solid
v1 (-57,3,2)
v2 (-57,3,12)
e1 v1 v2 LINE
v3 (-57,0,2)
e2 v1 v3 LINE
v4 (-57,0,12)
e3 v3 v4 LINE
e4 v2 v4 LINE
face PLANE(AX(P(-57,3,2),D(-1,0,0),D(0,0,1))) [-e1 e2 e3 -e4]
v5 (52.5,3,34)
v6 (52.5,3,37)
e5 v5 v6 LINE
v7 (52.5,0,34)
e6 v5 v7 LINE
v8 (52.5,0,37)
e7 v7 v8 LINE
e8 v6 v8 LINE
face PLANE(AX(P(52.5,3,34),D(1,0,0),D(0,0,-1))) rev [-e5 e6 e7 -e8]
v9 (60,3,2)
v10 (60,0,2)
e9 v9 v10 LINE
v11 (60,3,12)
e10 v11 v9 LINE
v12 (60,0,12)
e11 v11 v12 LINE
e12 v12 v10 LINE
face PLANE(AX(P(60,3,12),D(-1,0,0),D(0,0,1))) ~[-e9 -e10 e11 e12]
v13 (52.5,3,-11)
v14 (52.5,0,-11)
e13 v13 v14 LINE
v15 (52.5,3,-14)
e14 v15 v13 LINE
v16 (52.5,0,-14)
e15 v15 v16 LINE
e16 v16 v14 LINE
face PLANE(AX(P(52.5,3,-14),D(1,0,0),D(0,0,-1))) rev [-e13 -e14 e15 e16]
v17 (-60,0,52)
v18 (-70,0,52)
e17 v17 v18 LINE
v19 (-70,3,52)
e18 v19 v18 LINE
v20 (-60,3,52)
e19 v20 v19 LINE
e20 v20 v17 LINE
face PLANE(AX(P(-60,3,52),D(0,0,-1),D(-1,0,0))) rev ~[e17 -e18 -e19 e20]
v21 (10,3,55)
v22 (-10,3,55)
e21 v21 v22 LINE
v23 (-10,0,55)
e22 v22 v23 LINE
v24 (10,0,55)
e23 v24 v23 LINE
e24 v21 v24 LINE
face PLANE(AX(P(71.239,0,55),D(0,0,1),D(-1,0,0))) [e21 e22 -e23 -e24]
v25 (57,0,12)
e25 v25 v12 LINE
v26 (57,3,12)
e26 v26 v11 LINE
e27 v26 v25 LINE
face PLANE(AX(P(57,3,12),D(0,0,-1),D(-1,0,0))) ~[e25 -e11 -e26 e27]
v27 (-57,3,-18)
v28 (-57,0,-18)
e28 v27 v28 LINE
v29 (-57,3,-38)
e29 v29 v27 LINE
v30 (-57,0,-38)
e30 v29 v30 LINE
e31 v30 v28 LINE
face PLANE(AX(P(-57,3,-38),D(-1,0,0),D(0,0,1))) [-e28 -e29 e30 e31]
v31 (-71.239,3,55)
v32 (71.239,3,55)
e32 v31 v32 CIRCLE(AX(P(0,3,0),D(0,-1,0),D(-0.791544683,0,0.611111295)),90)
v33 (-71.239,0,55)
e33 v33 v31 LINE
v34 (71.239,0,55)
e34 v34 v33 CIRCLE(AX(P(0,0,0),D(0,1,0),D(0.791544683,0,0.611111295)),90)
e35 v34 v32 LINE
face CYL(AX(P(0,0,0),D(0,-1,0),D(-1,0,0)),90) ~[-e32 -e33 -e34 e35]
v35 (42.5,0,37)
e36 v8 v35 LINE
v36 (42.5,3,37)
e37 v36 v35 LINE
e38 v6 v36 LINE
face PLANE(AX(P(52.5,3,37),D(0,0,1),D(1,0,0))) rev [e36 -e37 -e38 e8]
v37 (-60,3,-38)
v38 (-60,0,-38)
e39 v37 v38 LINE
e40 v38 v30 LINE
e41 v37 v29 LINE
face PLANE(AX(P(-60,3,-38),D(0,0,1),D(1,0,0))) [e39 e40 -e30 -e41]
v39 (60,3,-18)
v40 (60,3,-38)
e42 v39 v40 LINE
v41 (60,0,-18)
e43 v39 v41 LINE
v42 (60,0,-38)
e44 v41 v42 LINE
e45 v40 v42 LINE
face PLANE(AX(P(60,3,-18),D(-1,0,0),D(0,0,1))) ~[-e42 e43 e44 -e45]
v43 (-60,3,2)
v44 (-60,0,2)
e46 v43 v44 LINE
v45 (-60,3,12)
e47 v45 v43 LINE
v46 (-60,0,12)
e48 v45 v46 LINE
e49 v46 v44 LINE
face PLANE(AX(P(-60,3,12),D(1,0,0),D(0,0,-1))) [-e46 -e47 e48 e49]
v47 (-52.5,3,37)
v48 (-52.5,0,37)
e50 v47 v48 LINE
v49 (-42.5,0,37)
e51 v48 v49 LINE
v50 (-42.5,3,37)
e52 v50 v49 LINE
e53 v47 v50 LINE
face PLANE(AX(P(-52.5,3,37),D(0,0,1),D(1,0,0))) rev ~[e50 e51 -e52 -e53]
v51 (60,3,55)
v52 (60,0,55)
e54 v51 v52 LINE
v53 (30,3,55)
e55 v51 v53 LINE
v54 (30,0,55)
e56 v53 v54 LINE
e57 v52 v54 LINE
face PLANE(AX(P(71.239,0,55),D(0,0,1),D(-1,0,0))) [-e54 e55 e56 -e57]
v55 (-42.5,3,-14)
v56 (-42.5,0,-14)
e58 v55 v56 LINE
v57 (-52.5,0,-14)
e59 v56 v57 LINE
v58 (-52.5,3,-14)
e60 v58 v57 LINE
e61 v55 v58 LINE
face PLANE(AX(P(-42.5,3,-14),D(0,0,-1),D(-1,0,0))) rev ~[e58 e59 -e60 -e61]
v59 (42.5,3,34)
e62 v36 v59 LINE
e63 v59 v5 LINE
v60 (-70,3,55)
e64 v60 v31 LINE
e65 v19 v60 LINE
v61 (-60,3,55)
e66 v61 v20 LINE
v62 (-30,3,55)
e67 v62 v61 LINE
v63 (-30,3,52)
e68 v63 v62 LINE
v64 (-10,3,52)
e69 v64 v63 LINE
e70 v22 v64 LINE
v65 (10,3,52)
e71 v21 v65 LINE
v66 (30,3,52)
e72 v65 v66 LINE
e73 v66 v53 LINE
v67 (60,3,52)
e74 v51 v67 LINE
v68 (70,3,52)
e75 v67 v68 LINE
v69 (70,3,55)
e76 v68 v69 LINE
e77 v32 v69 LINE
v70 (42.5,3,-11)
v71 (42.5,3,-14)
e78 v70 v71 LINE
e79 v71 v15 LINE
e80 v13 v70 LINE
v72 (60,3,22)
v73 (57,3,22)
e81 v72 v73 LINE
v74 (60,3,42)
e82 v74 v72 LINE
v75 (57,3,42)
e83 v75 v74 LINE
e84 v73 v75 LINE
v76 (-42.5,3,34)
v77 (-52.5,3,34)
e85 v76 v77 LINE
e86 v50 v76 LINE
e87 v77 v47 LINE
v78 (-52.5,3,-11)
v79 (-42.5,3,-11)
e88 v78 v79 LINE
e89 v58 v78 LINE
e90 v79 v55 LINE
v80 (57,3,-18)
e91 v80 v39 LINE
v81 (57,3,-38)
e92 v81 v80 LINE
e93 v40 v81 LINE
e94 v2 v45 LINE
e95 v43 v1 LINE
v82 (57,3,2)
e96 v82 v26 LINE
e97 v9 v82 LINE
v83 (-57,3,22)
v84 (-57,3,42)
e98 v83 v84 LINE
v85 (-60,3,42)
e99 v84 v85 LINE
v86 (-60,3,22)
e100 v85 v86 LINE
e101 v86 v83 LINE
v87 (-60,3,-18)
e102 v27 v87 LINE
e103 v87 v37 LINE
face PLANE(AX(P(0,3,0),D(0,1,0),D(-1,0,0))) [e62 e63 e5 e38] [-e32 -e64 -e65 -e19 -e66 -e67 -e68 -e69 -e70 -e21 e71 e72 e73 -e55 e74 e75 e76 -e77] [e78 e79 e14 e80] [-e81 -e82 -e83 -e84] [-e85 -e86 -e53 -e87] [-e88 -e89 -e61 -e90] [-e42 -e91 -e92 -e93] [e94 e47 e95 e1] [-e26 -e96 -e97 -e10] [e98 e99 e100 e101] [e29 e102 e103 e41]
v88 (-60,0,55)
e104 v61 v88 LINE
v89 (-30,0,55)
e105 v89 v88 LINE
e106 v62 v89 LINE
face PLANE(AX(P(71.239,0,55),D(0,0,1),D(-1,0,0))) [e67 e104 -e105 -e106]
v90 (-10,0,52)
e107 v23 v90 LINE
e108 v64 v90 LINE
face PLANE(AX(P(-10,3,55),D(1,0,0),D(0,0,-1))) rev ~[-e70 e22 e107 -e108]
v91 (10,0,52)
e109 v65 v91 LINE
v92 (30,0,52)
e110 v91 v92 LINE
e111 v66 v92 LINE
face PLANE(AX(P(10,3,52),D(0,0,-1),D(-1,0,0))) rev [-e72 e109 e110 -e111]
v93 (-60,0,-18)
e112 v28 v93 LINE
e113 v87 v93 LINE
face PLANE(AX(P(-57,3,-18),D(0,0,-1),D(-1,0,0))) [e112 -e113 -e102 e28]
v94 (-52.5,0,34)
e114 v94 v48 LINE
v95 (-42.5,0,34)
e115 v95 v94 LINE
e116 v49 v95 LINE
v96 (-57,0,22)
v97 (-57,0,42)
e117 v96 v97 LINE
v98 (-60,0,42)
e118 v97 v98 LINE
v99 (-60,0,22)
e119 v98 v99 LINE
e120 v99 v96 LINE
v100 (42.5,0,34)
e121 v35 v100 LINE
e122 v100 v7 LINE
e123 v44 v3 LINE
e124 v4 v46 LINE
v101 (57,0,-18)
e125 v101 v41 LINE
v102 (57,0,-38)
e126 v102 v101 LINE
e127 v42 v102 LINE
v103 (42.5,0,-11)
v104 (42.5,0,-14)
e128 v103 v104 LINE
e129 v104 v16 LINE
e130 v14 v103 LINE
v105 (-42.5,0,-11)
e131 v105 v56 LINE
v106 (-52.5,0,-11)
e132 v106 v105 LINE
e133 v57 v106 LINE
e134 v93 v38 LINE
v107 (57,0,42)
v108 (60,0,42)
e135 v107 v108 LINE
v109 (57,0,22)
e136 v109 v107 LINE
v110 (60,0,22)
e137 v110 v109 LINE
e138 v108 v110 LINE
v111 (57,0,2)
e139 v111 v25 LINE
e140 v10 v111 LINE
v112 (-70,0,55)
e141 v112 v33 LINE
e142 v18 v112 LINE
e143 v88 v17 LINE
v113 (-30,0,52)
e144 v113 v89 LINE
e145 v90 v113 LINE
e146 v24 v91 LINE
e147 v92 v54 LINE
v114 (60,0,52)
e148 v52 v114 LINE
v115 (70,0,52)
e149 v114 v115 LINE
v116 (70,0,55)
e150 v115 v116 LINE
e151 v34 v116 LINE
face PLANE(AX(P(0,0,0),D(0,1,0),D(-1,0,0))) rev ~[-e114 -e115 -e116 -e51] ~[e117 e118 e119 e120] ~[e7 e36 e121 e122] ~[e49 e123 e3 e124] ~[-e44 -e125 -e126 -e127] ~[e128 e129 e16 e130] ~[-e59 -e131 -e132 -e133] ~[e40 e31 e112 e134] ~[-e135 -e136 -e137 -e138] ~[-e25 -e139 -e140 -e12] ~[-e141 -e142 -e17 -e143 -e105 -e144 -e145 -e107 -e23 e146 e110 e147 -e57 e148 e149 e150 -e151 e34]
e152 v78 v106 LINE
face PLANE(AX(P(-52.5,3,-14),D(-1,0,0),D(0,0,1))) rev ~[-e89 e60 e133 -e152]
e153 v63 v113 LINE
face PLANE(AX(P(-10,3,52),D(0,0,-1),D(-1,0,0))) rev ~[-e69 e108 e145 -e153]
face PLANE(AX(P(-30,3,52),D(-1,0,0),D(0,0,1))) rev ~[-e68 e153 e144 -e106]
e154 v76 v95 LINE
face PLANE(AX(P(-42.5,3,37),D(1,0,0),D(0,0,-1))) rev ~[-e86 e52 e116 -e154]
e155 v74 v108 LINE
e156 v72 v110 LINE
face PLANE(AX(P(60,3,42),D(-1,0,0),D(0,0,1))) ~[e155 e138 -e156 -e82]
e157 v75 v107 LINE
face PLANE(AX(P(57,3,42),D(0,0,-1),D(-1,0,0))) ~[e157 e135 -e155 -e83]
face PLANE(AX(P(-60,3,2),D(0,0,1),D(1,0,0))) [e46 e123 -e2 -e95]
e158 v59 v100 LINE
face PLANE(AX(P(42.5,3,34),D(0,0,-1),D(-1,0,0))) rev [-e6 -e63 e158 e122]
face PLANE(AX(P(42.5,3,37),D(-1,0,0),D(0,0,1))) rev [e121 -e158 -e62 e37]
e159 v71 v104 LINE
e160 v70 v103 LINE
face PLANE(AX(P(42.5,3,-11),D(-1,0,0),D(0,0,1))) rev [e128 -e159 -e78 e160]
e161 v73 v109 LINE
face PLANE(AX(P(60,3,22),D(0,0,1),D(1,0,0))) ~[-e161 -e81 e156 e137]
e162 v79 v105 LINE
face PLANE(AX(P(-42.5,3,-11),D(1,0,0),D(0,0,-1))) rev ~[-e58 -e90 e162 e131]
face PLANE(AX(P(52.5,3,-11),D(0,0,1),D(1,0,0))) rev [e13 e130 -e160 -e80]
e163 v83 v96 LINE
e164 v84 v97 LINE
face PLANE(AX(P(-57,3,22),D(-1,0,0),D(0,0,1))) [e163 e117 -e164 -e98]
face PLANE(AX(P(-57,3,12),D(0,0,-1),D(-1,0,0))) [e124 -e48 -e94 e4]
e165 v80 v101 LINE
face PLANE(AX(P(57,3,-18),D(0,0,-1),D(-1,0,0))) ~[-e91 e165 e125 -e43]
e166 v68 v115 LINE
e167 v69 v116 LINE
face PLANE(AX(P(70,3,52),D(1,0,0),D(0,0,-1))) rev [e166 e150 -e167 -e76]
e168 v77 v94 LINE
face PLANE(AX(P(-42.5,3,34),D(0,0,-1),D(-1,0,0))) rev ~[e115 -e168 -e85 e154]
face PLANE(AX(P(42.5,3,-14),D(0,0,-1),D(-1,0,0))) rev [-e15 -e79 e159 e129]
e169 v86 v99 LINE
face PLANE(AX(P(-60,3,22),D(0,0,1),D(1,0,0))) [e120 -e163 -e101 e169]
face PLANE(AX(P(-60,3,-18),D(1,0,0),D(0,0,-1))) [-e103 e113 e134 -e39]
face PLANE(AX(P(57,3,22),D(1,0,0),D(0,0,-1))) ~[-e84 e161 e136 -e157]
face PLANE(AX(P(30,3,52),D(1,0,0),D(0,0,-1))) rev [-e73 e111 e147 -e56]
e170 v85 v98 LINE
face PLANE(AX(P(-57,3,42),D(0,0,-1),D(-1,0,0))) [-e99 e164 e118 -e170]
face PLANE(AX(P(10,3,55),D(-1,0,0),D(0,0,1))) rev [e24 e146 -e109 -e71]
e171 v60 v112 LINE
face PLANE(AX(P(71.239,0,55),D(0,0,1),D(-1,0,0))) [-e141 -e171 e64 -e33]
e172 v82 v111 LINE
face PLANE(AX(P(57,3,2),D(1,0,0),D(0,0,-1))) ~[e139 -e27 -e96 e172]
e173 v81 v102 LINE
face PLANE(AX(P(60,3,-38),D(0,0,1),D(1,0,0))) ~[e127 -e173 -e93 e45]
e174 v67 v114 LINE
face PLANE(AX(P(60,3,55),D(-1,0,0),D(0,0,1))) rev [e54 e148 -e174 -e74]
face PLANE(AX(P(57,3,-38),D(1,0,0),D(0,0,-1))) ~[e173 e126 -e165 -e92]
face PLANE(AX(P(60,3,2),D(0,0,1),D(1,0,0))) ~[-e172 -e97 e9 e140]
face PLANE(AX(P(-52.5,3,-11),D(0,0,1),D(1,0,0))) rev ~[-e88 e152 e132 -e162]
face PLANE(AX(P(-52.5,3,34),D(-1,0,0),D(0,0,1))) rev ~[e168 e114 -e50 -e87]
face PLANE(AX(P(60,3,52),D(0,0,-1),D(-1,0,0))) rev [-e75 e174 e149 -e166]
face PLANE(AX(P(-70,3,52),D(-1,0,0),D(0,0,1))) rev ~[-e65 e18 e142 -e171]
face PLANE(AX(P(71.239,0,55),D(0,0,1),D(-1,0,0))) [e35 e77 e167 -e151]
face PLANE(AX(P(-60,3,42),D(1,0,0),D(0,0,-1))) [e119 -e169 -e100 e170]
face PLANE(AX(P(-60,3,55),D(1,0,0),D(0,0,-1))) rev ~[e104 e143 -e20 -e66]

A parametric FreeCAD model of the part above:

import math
import FreeCAD as App
import Part
import Sketcher
from FreeCAD import Vector


def add_polygon(sketch, points):
    """Adds a closed chain of lines whose ends are joined by coincident constraints."""
    first, n = sketch.GeometryCount, len(points)
    for a, b in zip(points, points[1:] + points[:1]):
        sketch.addGeometry(Part.LineSegment(App.Vector(*a, 0), App.Vector(*b, 0)), False)
    for i in range(n):
        sketch.addConstraint(Sketcher.Constraint("Coincident", first + i, 2, first + (i + 1) % n, 1))

doc = App.newDocument("Part")
params = doc.addObject("Spreadsheet::Sheet", "Params")
for row, (alias, value) in enumerate([
    ("sketch1_radius", "90 mm"),
    ("pad1_length", "3 mm"),
    ("sketch2_width", "10 mm"),
    ("sketch2_width2", "20 mm"),
    ("sketch2_height", "3 mm"),
    ("pocket1_length", "3 mm"),
    ("sketch3_width", "3 mm"),
    ("sketch3_height", "20 mm"),
    ("sketch3_height2", "10 mm"),
    ("pocket2_length", "3 mm"),
    ("sketch4_width", "10 mm"),
    ("sketch4_height", "3 mm"),
    ("pocket3_length", "3 mm"),
], start=1):
    params.set(f"A{row}", alias)
    params.set(f"B{row}", "=" + value)
    params.setAlias(f"B{row}", alias)

body = doc.addObject("PartDesign::Body", "Body")

# Sketch on XZ plane
sketch1 = doc.addObject("Sketcher::SketchObject", "Sketch")
body.addObject(sketch1)
sketch1.AttachmentSupport = (doc.XZ_Plane, [""])
sketch1.MapMode = "FlatFace"
sketch1.addGeometry(Part.ArcOfCircle(Part.Circle(Vector(0, 0, 0), Vector(0, 0, 1), 90), math.radians(142.3301), math.radians(397.6699)), False)
sketch1.addGeometry(Part.LineSegment(Vector(71.239, 55, 0), Vector(-71.239, 55, 0)), False)
sketch1.addConstraint(Sketcher.Constraint("Coincident", 0, 1, 1, 2))
sketch1.addConstraint(Sketcher.Constraint("Coincident", 1, 1, 0, 2))
sketch1.addConstraint(Sketcher.Constraint("Horizontal", 1))
sketch1.addConstraint(Sketcher.Constraint("Coincident", 0, 3, -1, 1))
sketch1.addConstraint(Sketcher.Constraint("Radius", 0, 90.0))
sketch1.addConstraint(Sketcher.Constraint("DistanceY", -1, 1, 0, 1, 55.0))
sketch1.setExpression("Constraints[4]", "Params.sketch1_radius")
pad1 = doc.addObject("PartDesign::Pad", "Pad")
body.addObject(pad1)
pad1.Profile = sketch1
pad1.setExpression("Length", "Params.pad1_length")
pad1.Reversed = True

# Sketch on XZ plane
sketch2 = doc.addObject("Sketcher::SketchObject", "Sketch001")
body.addObject(sketch2)
sketch2.AttachmentSupport = (doc.XZ_Plane, [""])
sketch2.MapMode = "FlatFace"
sketch2.AttachmentOffset = App.Placement(Vector(0, 0, -3), App.Rotation())
add_polygon(sketch2, [(-70, 52), (-70, 55), (-60, 55), (-60, 52)])  # lines 0-3
add_polygon(sketch2, [(-30, 52), (-30, 55), (-10, 55), (-10, 52)])  # lines 4-7
sketch2.addConstraint(Sketcher.Constraint("Vertical", 0))
sketch2.addConstraint(Sketcher.Constraint("Horizontal", 1))
sketch2.addConstraint(Sketcher.Constraint("Vertical", 2))
sketch2.addConstraint(Sketcher.Constraint("Horizontal", 3))
sketch2.addConstraint(Sketcher.Constraint("Vertical", 4))
sketch2.addConstraint(Sketcher.Constraint("Horizontal", 5))
sketch2.addConstraint(Sketcher.Constraint("Vertical", 6))
sketch2.addConstraint(Sketcher.Constraint("Horizontal", 7))
sketch2.addConstraint(Sketcher.Constraint("Horizontal", 1, 2, 4, 2))
sketch2.addConstraint(Sketcher.Constraint("Horizontal", 3, 2, 6, 2))
sketch2.addConstraint(Sketcher.Constraint("DistanceX", 1, 1, 1, 2, 10.0))
sketch2.addConstraint(Sketcher.Constraint("DistanceX", 5, 1, 5, 2, 20.0))
sketch2.addConstraint(Sketcher.Constraint("DistanceY", 0, 1, 0, 2, 3.0))
sketch2.addConstraint(Sketcher.Constraint("DistanceX", 4, 2, -1, 1, 30.0))
sketch2.addConstraint(Sketcher.Constraint("DistanceX", 1, 2, 4, 2, 30.0))
sketch2.addConstraint(Sketcher.Constraint("DistanceY", -1, 1, 0, 2, 55.0))
sketch2.setExpression("Constraints[18]", "Params.sketch2_width")
sketch2.setExpression("Constraints[19]", "Params.sketch2_width2")
sketch2.setExpression("Constraints[20]", "Params.sketch2_height")
pocket1 = doc.addObject("PartDesign::Pocket", "Pocket")
body.addObject(pocket1)
pocket1.Profile = sketch2
pocket1.setExpression("Length", "Params.pocket1_length")
pocket1.Reversed = True

# Sketch on XZ plane
sketch3 = doc.addObject("Sketcher::SketchObject", "Sketch002")
body.addObject(sketch3)
sketch3.AttachmentSupport = (doc.XZ_Plane, [""])
sketch3.MapMode = "FlatFace"
sketch3.AttachmentOffset = App.Placement(Vector(0, 0, -3), App.Rotation())
add_polygon(sketch3, [(-60, 42), (-57, 42), (-57, 22), (-60, 22)])  # lines 0-3
add_polygon(sketch3, [(-60, 12), (-57, 12), (-57, 2), (-60, 2)])  # lines 4-7
add_polygon(sketch3, [(-60, -18), (-57, -18), (-57, -38), (-60, -38)])  # lines 8-11
sketch3.addConstraint(Sketcher.Constraint("Horizontal", 0))
sketch3.addConstraint(Sketcher.Constraint("Vertical", 1))
sketch3.addConstraint(Sketcher.Constraint("Horizontal", 2))
sketch3.addConstraint(Sketcher.Constraint("Vertical", 3))
sketch3.addConstraint(Sketcher.Constraint("Horizontal", 4))
sketch3.addConstraint(Sketcher.Constraint("Vertical", 5))
sketch3.addConstraint(Sketcher.Constraint("Horizontal", 6))
sketch3.addConstraint(Sketcher.Constraint("Vertical", 7))
sketch3.addConstraint(Sketcher.Constraint("Horizontal", 8))
sketch3.addConstraint(Sketcher.Constraint("Vertical", 9))
sketch3.addConstraint(Sketcher.Constraint("Horizontal", 10))
sketch3.addConstraint(Sketcher.Constraint("Vertical", 11))
sketch3.addConstraint(Sketcher.Constraint("Vertical", 1, 2, 4, 2))
sketch3.addConstraint(Sketcher.Constraint("Vertical", 3, 2, 6, 2))
sketch3.addConstraint(Sketcher.Constraint("Vertical", 5, 2, 8, 2))
sketch3.addConstraint(Sketcher.Constraint("Vertical", 7, 2, 10, 2))
sketch3.addConstraint(Sketcher.Constraint("Equal", 3, 9))
sketch3.addConstraint(Sketcher.Constraint("DistanceX", 0, 1, 0, 2, 3.0))
sketch3.addConstraint(Sketcher.Constraint("DistanceY", 1, 2, 1, 1, 20.0))
sketch3.addConstraint(Sketcher.Constraint("DistanceY", 5, 2, 5, 1, 10.0))
sketch3.addConstraint(Sketcher.Constraint("DistanceX", 0, 2, -1, 1, 57.0))
sketch3.addConstraint(Sketcher.Constraint("DistanceY", 4, 2, 1, 2, 10.0))
sketch3.addConstraint(Sketcher.Constraint("DistanceY", 8, 2, 5, 2, 20.0))
sketch3.addConstraint(Sketcher.Constraint("DistanceY", -1, 1, 0, 2, 42.0))
sketch3.setExpression("Constraints[29]", "Params.sketch3_width")
sketch3.setExpression("Constraints[30]", "Params.sketch3_height")
sketch3.setExpression("Constraints[31]", "Params.sketch3_height2")
pocket2 = doc.addObject("PartDesign::Pocket", "Pocket001")
body.addObject(pocket2)
pocket2.Profile = sketch3
pocket2.setExpression("Length", "Params.pocket2_length")
pocket2.Reversed = True

# Sketch on XZ plane
sketch4 = doc.addObject("Sketcher::SketchObject", "Sketch003")
body.addObject(sketch4)
sketch4.AttachmentSupport = (doc.XZ_Plane, [""])
sketch4.MapMode = "FlatFace"
sketch4.AttachmentOffset = App.Placement(Vector(0, 0, -3), App.Rotation())
add_polygon(sketch4, [(-42.5, 37), (-42.5, 34), (-52.5, 34), (-52.5, 37)])  # lines 0-3
add_polygon(sketch4, [(-42.5, -11), (-42.5, -14), (-52.5, -14), (-52.5, -11)])  # lines 4-7
sketch4.addConstraint(Sketcher.Constraint("Vertical", 0))
sketch4.addConstraint(Sketcher.Constraint("Horizontal", 1))
sketch4.addConstraint(Sketcher.Constraint("Vertical", 2))
sketch4.addConstraint(Sketcher.Constraint("Horizontal", 3))
sketch4.addConstraint(Sketcher.Constraint("Vertical", 4))
sketch4.addConstraint(Sketcher.Constraint("Horizontal", 5))
sketch4.addConstraint(Sketcher.Constraint("Vertical", 6))
sketch4.addConstraint(Sketcher.Constraint("Horizontal", 7))
sketch4.addConstraint(Sketcher.Constraint("Vertical", 3, 2, 4, 2))
sketch4.addConstraint(Sketcher.Constraint("Vertical", 2, 2, 5, 2))
sketch4.addConstraint(Sketcher.Constraint("Equal", 2, 4))
sketch4.addConstraint(Sketcher.Constraint("DistanceX", 1, 2, 1, 1, 10.0))
sketch4.addConstraint(Sketcher.Constraint("DistanceY", 0, 2, 0, 1, 3.0))
sketch4.addConstraint(Sketcher.Constraint("DistanceY", 6, 2, 1, 2, 45.0))
sketch4.addConstraint(Sketcher.Constraint("DistanceY", -1, 1, 0, 2, 34.0))
sketch4.addConstraint(Sketcher.Constraint("DistanceX", 0, 2, -1, 1, 42.5))
sketch4.setExpression("Constraints[19]", "Params.sketch4_width")
sketch4.setExpression("Constraints[20]", "Params.sketch4_height")
pocket3 = doc.addObject("PartDesign::Pocket", "Pocket002")
body.addObject(pocket3)
pocket3.Profile = sketch4
pocket3.setExpression("Length", "Params.pocket3_length")
pocket3.Reversed = True
doc.recompute()

mirrored = doc.addObject("PartDesign::Mirrored", "Mirrored")
body.addObject(mirrored)
mirrored.Originals = [pocket3, pocket2, pocket1]
mirrored.MirrorPlane = (doc.YZ_Plane, [""])
body.Tip = mirrored

doc.recompute()
